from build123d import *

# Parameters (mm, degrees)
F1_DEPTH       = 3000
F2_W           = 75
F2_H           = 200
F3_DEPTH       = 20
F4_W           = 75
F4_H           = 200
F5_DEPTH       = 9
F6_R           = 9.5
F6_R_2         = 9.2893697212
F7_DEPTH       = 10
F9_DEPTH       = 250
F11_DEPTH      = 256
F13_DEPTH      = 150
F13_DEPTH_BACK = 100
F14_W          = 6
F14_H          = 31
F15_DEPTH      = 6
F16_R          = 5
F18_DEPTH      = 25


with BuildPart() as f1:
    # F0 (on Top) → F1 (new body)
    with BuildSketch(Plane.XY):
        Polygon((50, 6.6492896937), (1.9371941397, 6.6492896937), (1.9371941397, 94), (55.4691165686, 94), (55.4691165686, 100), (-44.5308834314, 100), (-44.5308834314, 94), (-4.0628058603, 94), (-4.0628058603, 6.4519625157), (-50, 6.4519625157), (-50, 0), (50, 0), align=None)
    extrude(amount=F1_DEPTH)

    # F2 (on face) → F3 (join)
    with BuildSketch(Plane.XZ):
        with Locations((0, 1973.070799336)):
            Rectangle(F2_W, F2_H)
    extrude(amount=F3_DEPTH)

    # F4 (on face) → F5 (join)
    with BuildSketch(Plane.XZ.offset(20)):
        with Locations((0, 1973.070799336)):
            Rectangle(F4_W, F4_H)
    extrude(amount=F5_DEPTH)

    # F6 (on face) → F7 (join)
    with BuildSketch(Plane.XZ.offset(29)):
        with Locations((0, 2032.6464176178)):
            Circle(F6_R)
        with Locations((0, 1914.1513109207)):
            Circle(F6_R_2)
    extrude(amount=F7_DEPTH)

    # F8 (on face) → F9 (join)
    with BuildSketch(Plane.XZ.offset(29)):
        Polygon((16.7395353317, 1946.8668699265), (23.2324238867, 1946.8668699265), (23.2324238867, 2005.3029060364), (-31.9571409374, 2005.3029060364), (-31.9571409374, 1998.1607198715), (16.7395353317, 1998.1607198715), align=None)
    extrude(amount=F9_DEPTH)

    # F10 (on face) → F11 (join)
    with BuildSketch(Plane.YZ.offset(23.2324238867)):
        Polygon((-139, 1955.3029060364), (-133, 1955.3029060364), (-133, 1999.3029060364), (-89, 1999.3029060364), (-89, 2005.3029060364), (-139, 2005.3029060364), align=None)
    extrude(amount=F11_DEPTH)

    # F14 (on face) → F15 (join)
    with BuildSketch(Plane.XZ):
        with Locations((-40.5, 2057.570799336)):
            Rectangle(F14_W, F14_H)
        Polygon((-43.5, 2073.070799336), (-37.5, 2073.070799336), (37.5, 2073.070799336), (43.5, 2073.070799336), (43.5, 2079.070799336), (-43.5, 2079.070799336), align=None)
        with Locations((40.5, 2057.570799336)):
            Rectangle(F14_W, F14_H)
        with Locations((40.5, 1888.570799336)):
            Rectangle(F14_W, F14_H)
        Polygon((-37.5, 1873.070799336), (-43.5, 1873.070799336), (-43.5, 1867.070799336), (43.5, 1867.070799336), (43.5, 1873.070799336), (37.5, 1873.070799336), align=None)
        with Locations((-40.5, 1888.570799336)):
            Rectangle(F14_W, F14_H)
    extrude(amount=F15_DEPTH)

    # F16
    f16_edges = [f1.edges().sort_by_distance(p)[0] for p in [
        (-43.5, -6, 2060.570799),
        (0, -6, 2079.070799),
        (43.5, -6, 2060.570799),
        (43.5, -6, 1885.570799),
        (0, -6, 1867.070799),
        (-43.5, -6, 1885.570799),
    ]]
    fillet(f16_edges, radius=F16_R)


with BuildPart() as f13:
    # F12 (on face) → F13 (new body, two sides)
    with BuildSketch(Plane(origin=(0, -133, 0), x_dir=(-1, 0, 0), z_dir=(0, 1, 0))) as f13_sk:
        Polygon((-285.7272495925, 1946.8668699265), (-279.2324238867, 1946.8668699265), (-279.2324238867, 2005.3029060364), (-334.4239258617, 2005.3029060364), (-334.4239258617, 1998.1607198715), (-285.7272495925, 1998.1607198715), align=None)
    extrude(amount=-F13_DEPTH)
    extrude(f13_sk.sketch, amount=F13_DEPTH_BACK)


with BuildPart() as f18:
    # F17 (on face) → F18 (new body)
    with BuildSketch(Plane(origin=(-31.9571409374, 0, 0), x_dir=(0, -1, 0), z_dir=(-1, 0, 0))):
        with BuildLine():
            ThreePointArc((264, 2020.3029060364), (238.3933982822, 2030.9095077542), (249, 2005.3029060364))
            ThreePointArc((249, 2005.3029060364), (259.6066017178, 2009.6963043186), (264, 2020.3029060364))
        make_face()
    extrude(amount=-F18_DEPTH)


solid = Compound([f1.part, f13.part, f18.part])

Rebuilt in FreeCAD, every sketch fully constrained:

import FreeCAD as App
import Part
import Sketcher
from FreeCAD import Vector
Q = App.Units.Quantity


def edges_at(feature, points):
    """Names of the edges that pass closest to the given points."""
    edges = feature.Shape.Edges
    near = lambda p: min(range(len(edges)), key=lambda i: edges[i].distToShape(Part.Vertex(*p))[0])
    return sorted({f"Edge{near(p) + 1}" for p in points})


def add_polygon(sketch, points):
    """Adds a closed chain of lines whose ends are joined by coincident constraints."""
    first, n = sketch.GeometryCount, len(points)
    for a, b in zip(points, points[1:] + points[:1]):
        sketch.addGeometry(Part.LineSegment(App.Vector(*a, 0), App.Vector(*b, 0)), False)
    for i in range(n):
        sketch.addConstraint(Sketcher.Constraint("Coincident", first + i, 2, first + (i + 1) % n, 1))

doc = App.newDocument("Part")
params = doc.addObject("Spreadsheet::Sheet", "Params")
for row, (alias, value) in enumerate([
    ("sketch1_width", "100 mm"),
    ("sketch1_height", "6 mm"),
    ("pad1_length", "3000 mm"),
    ("sketch2_width", "75 mm"),
    ("sketch2_height", "200 mm"),
    ("pad2_length", "20 mm"),
    ("sketch3_width", "75 mm"),
    ("sketch3_height", "200 mm"),
    ("pad3_length", "9 mm"),
    ("sketch4_diameter", "19 mm"),
    ("pad4_length", "10 mm"),
    ("pad5_length", "250 mm"),
    ("sketch6_width", "6 mm"),
    ("sketch6_width2", "44 mm"),
    ("pad6_length", "256 mm"),
    ("sketch7_width", "6 mm"),
    ("sketch7_width2", "75 mm"),
    ("sketch7_height", "31 mm"),
    ("sketch7_height2", "37 mm"),
    ("pad7_length", "6 mm"),
    ("fillet_radius", "5 mm"),
    ("pad8_length", "150 mm"),
    ("pad8_length2", "100 mm"),
    ("sketch9_diameter", "30 mm"),
    ("pad9_length", "25 mm"),
], start=1):
    params.set(f"A{row}", alias)
    params.set(f"B{row}", "=" + value)
    params.setAlias(f"B{row}", alias)

body = doc.addObject("PartDesign::Body", "Body")

# Sketch on XY plane
sketch1 = body.newObject("Sketcher::SketchObject", "Sketch")
sketch1.AttachmentSupport = (doc.getObject("XY_Plane"), [""])
sketch1.MapMode = "FlatFace"
add_polygon(sketch1, [(50, 7), (2, 7), (2, 94), (55, 94), (55, 100), (-45, 100), (-45, 94), (-4, 94), (-4, 6), (-50, 6), (-50, 0), (50, 0)])  # lines 0-11
sketch1.addConstraint([
    Sketcher.Constraint("Horizontal", 0),
    Sketcher.Constraint("Vertical", 1),
    Sketcher.Constraint("Horizontal", 2),
    Sketcher.Constraint("Vertical", 3),
    Sketcher.Constraint("Horizontal", 4),
    Sketcher.Constraint("Vertical", 5),
    Sketcher.Constraint("Horizontal", 6),
    Sketcher.Constraint("Vertical", 7),
    Sketcher.Constraint("Horizontal", 8),
    Sketcher.Constraint("Vertical", 9),
    Sketcher.Constraint("Horizontal", 10),
    Sketcher.Constraint("Vertical", 11),
    Sketcher.Constraint("Symmetric", 9, 2, 10, 2, -1, 1),
    Sketcher.Constraint("Horizontal", 2, 2, 5, 2),
    Sketcher.Constraint("Equal", 4, 10),
    Sketcher.Constraint("DistanceX", 4, 2, 4, 1, Q("100 mm")),
    Sketcher.Constraint("DistanceY", 3, 1, 3, 2, Q("6 mm")),
    Sketcher.Constraint("DistanceY", -1, 1, 1, 2, Q("94 mm")),
    Sketcher.Constraint("DistanceX", 6, 2, 1, 2, Q("6 mm")),
    Sketcher.Constraint("DistanceY", 1, 1, 1, 2, Q("87.35071 mm")),
    Sketcher.Constraint("DistanceX", 0, 2, 0, 1, Q("48.062806 mm")),
    Sketcher.Constraint("DistanceX", 2, 1, 2, 2, Q("53.531922 mm")),
    Sketcher.Constraint("DistanceY", 7, 2, 7, 1, Q("87.548037 mm")),
])
sketch1.setExpression("Constraints[27]", "Params.sketch1_width")
sketch1.setExpression("Constraints[28]", "Params.sketch1_height")
pad1 = body.newObject("PartDesign::Pad", "Pad")
pad1.Profile = sketch1
pad1.setExpression("Length", "Params.pad1_length")

# Sketch on XZ plane
sketch2 = body.newObject("Sketcher::SketchObject", "Sketch001")
sketch2.AttachmentSupport = (doc.getObject("XZ_Plane"), [""])
sketch2.MapMode = "FlatFace"
add_polygon(sketch2, [(-38, 2073), (-38, 1873), (38, 1873), (38, 2073)])  # lines 0-3
sketch2.addConstraint([
    Sketcher.Constraint("Vertical", 0),
    Sketcher.Constraint("Horizontal", 1),
    Sketcher.Constraint("Vertical", 2),
    Sketcher.Constraint("Horizontal", 3),
    Sketcher.Constraint("DistanceX", 1, 1, 1, 2, Q("75 mm")),
    Sketcher.Constraint("DistanceY", 0, 2, 0, 1, Q("200 mm")),
    Sketcher.Constraint("DistanceX", 0, 2, -1, 1, Q("37.5 mm")),
    Sketcher.Constraint("DistanceY", -1, 1, 0, 2, Q("1873.070799 mm")),
])
sketch2.setExpression("Constraints[8]", "Params.sketch2_width")
sketch2.setExpression("Constraints[9]", "Params.sketch2_height")
pad2 = body.newObject("PartDesign::Pad", "Pad001")
pad2.Profile = sketch2
pad2.setExpression("Length", "Params.pad2_length")

# Sketch on XZ plane
sketch3 = body.newObject("Sketcher::SketchObject", "Sketch002")
sketch3.AttachmentSupport = (doc.getObject("XZ_Plane"), [""])
sketch3.MapMode = "FlatFace"
sketch3.AttachmentOffset = App.Placement(Vector(0, 0, 20), App.Rotation())
add_polygon(sketch3, [(-38, 2073), (-38, 1873), (38, 1873), (38, 2073)])  # lines 0-3
sketch3.addConstraint([
    Sketcher.Constraint("Vertical", 0),
    Sketcher.Constraint("Horizontal", 1),
    Sketcher.Constraint("Vertical", 2),
    Sketcher.Constraint("Horizontal", 3),
    Sketcher.Constraint("DistanceX", 1, 1, 1, 2, Q("75 mm")),
    Sketcher.Constraint("DistanceY", 0, 2, 0, 1, Q("200 mm")),
    Sketcher.Constraint("DistanceX", 0, 2, -1, 1, Q("37.5 mm")),
    Sketcher.Constraint("DistanceY", -1, 1, 0, 2, Q("1873.070799 mm")),
])
sketch3.setExpression("Constraints[8]", "Params.sketch3_width")
sketch3.setExpression("Constraints[9]", "Params.sketch3_height")
pad3 = body.newObject("PartDesign::Pad", "Pad002")
pad3.Profile = sketch3
pad3.setExpression("Length", "Params.pad3_length")

# Sketch on XZ plane
sketch4 = body.newObject("Sketcher::SketchObject", "Sketch003")
sketch4.AttachmentSupport = (doc.getObject("XZ_Plane"), [""])
sketch4.MapMode = "FlatFace"
sketch4.AttachmentOffset = App.Placement(Vector(0, 0, 29), App.Rotation())
sketch4.addGeometry([
    Part.Circle(Vector(0, 2033, 0), Vector(0, 0, 1), 10),
    Part.Circle(Vector(0, 1914, 0), Vector(0, 0, 1), 9),
], False)
sketch4.addConstraint([
    Sketcher.Constraint("PointOnObject", 0, 3, -2),
    Sketcher.Constraint("PointOnObject", 1, 3, -2),
    Sketcher.Constraint("Diameter", 0, Q("19 mm")),
    Sketcher.Constraint("Diameter", 1, Q("18.578739 mm")),
    Sketcher.Constraint("DistanceY", -1, 1, 1, 3, Q("1914.151311 mm")),
    Sketcher.Constraint("DistanceY", -1, 1, 0, 3, Q("2032.646418 mm")),
])
sketch4.setExpression("Constraints[2]", "Params.sketch4_diameter")
pad4 = body.newObject("PartDesign::Pad", "Pad003")
pad4.Profile = sketch4
pad4.setExpression("Length", "Params.pad4_length")

# Sketch on XZ plane
sketch5 = body.newObject("Sketcher::SketchObject", "Sketch004")
sketch5.AttachmentSupport = (doc.getObject("XZ_Plane"), [""])
sketch5.MapMode = "FlatFace"
sketch5.AttachmentOffset = App.Placement(Vector(0, 0, 29), App.Rotation())
add_polygon(sketch5, [(17, 1947), (23, 1947), (23, 2005), (-32, 2005), (-32, 1998), (17, 1998)])  # lines 0-5
sketch5.addConstraint([
    Sketcher.Constraint("Horizontal", 0),
    Sketcher.Constraint("Vertical", 1),
    Sketcher.Constraint("Horizontal", 2),
    Sketcher.Constraint("Vertical", 3),
    Sketcher.Constraint("Horizontal", 4),
    Sketcher.Constraint("Vertical", 5),
    Sketcher.Constraint("DistanceX", 0, 1, 0, 2, Q("6.492889 mm")),
    Sketcher.Constraint("DistanceY", 5, 2, 5, 1, Q("51.29385 mm")),
    Sketcher.Constraint("DistanceX", 2, 2, 2, 1, Q("55.189565 mm")),
    Sketcher.Constraint("DistanceY", 1, 1, 1, 2, Q("58.436036 mm")),
    Sketcher.Constraint("DistanceY", -1, 1, 0, 2, Q("1946.86687 mm")),
    Sketcher.Constraint("DistanceX", 2, 2, -1, 1, Q("31.957141 mm")),
])
pad5 = body.newObject("PartDesign::Pad", "Pad004")
pad5.Profile = sketch5
pad5.setExpression("Length", "Params.pad5_length")

# Sketch on YZ plane
sketch6 = body.newObject("Sketcher::SketchObject", "Sketch005")
sketch6.AttachmentSupport = (doc.getObject("YZ_Plane"), [""])
sketch6.MapMode = "FlatFace"
sketch6.AttachmentOffset = App.Placement(Vector(0, 0, 23.232424), App.Rotation())
add_polygon(sketch6, [(-139, 1955), (-133, 1955), (-133, 1999), (-89, 1999), (-89, 2005), (-139, 2005)])  # lines 0-5
sketch6.addConstraint([
    Sketcher.Constraint("Horizontal", 0),
    Sketcher.Constraint("Vertical", 1),
    Sketcher.Constraint("Horizontal", 2),
    Sketcher.Constraint("Vertical", 3),
    Sketcher.Constraint("Horizontal", 4),
    Sketcher.Constraint("Vertical", 5),
    Sketcher.Constraint("Equal", 2, 1),
    Sketcher.Constraint("Equal", 0, 3),
    Sketcher.Constraint("DistanceX", 0, 1, 0, 2, Q("6 mm")),
    Sketcher.Constraint("DistanceX", 2, 1, 2, 2, Q("44 mm")),
    Sketcher.Constraint("DistanceX", 0, 2, -1, 1, Q("133 mm")),
    Sketcher.Constraint("DistanceY", -1, 1, 0, 2, Q("1955.302906 mm")),
])
sketch6.setExpression("Constraints[14]", "Params.sketch6_width")
sketch6.setExpression("Constraints[15]", "Params.sketch6_width2")
pad6 = body.newObject("PartDesign::Pad", "Pad005")
pad6.Profile = sketch6
pad6.setExpression("Length", "Params.pad6_length")

# Sketch on XZ plane
sketch7 = body.newObject("Sketcher::SketchObject", "Sketch006")
sketch7.AttachmentSupport = (doc.getObject("XZ_Plane"), [""])
sketch7.MapMode = "FlatFace"
add_polygon(sketch7, [(-44, 2042), (-38, 2042), (-38, 2073), (38, 2073), (38, 2042), (44, 2042), (44, 2079), (-44, 2079)])  # lines 0-7
add_polygon(sketch7, [(38, 1904), (38, 1873), (-38, 1873), (-38, 1904), (-44, 1904), (-44, 1867), (44, 1867), (44, 1904)])  # lines 8-15
sketch7.addConstraint([
    Sketcher.Constraint("Horizontal", 0),
    Sketcher.Constraint("Vertical", 1),
    Sketcher.Constraint("Horizontal", 2),
    Sketcher.Constraint("Vertical", 3),
    Sketcher.Constraint("Horizontal", 4),
    Sketcher.Constraint("Vertical", 5),
    Sketcher.Constraint("Horizontal", 6),
    Sketcher.Constraint("Vertical", 7),
    Sketcher.Constraint("Vertical", 8),
    Sketcher.Constraint("Horizontal", 9),
    Sketcher.Constraint("Vertical", 10),
    Sketcher.Constraint("Horizontal", 11),
    Sketcher.Constraint("Vertical", 12),
    Sketcher.Constraint("Horizontal", 13),
    Sketcher.Constraint("Vertical", 14),
    Sketcher.Constraint("Horizontal", 15),
    Sketcher.Constraint("Symmetric", 0, 2, 3, 2, -2),
    Sketcher.Constraint("Symmetric", 11, 2, 14, 2, -2),
    Sketcher.Constraint("Vertical", 3, 2, 8, 2),
    Sketcher.Constraint("Vertical", 1, 2, 9, 2),
    Sketcher.Constraint("Vertical", 7, 2, 11, 2),
    Sketcher.Constraint("Vertical", 5, 2, 13, 2),
    Sketcher.Constraint("Equal", 3, 8),
    Sketcher.Constraint("Equal", 7, 12),
    Sketcher.Constraint("DistanceX", 0, 1, 0, 2, Q("6 mm")),
    Sketcher.Constraint("DistanceX", 2, 1, 2, 2, Q("75 mm")),
    Sketcher.Constraint("DistanceY", 1, 1, 1, 2, Q("31 mm")),
    Sketcher.Constraint("DistanceY", 5, 1, 5, 2, Q("37 mm")),
    Sketcher.Constraint("DistanceY", 8, 2, 3, 2, Q("169 mm")),
    Sketcher.Constraint("DistanceY", -1, 1, 0, 2, Q("2042.070799 mm")),
])
sketch7.setExpression("Constraints[40]", "Params.sketch7_width")
sketch7.setExpression("Constraints[41]", "Params.sketch7_width2")
sketch7.setExpression("Constraints[42]", "Params.sketch7_height")
sketch7.setExpression("Constraints[43]", "Params.sketch7_height2")
pad7 = body.newObject("PartDesign::Pad", "Pad006")
pad7.Profile = sketch7
pad7.setExpression("Length", "Params.pad7_length")
doc.recompute()

fillet = body.newObject("PartDesign::Fillet", "Fillet")
fillet.Base = (pad7, edges_at(pad7, [
    (-43.5, -6, 2060.571),
    (0, -6, 2079.071),
    (43.5, -6, 2060.571),
    (43.5, -6, 1885.571),
    (0, -6, 1867.071),
    (-43.5, -6, 1885.571),
]))
fillet.setExpression("Radius", "Params.fillet_radius")
body2 = doc.addObject("PartDesign::Body", "Body001")

# Sketch on XZ plane
sketch8 = body2.newObject("Sketcher::SketchObject", "Sketch007")
sketch8.AttachmentSupport = (doc.getObject("XZ_Plane001"), [""])
sketch8.MapMode = "FlatFace"
sketch8.AttachmentOffset = App.Placement(Vector(0, 0, 133), App.Rotation())
add_polygon(sketch8, [(286, 1947), (279, 1947), (279, 2005), (334, 2005), (334, 1998), (286, 1998)])  # lines 0-5
sketch8.addConstraint([
    Sketcher.Constraint("Horizontal", 0),
    Sketcher.Constraint("Vertical", 1),
    Sketcher.Constraint("Horizontal", 2),
    Sketcher.Constraint("Vertical", 3),
    Sketcher.Constraint("Horizontal", 4),
    Sketcher.Constraint("Vertical", 5),
    Sketcher.Constraint("DistanceX", 2, 1, 2, 2, Q("55.191502 mm")),
    Sketcher.Constraint("DistanceY", 5, 2, 5, 1, Q("51.29385 mm")),
    Sketcher.Constraint("DistanceX", 0, 2, 0, 1, Q("6.494826 mm")),
    Sketcher.Constraint("DistanceY", 1, 1, 1, 2, Q("58.436036 mm")),
    Sketcher.Constraint("DistanceY", -1, 1, 0, 2, Q("1946.86687 mm")),
    Sketcher.Constraint("DistanceX", -1, 1, 4, 2, Q("285.72725 mm")),
])
pad8 = body2.newObject("PartDesign::Pad", "Pad007")
pad8.Profile = sketch8
pad8.Type = "TwoLengths"
pad8.setExpression("Length", "Params.pad8_length")
pad8.setExpression("Length2", "Params.pad8_length2")
body3 = doc.addObject("PartDesign::Body", "Body002")

# Sketch on YZ plane
sketch9 = body3.newObject("Sketcher::SketchObject", "Sketch008")
sketch9.AttachmentSupport = (doc.getObject("YZ_Plane002"), [""])
sketch9.MapMode = "FlatFace"
sketch9.AttachmentOffset = App.Placement(Vector(0, 0, -31.957141), App.Rotation())
sketch9.addGeometry(Part.Circle(Vector(-249, 2020, 0), Vector(0, 0, 1), 15), False)
sketch9.addConstraint([
    Sketcher.Constraint("Diameter", 0, Q("30 mm")),
    Sketcher.Constraint("DistanceX", 0, 3, -1, 1, Q("249 mm")),
    Sketcher.Constraint("DistanceY", -1, 1, 0, 3, Q("2020.302906 mm")),
])
sketch9.setExpression("Constraints[0]", "Params.sketch9_diameter")
pad9 = body3.newObject("PartDesign::Pad", "Pad008")
pad9.Profile = sketch9
pad9.setExpression("Length", "Params.pad9_length")

doc.recompute()
